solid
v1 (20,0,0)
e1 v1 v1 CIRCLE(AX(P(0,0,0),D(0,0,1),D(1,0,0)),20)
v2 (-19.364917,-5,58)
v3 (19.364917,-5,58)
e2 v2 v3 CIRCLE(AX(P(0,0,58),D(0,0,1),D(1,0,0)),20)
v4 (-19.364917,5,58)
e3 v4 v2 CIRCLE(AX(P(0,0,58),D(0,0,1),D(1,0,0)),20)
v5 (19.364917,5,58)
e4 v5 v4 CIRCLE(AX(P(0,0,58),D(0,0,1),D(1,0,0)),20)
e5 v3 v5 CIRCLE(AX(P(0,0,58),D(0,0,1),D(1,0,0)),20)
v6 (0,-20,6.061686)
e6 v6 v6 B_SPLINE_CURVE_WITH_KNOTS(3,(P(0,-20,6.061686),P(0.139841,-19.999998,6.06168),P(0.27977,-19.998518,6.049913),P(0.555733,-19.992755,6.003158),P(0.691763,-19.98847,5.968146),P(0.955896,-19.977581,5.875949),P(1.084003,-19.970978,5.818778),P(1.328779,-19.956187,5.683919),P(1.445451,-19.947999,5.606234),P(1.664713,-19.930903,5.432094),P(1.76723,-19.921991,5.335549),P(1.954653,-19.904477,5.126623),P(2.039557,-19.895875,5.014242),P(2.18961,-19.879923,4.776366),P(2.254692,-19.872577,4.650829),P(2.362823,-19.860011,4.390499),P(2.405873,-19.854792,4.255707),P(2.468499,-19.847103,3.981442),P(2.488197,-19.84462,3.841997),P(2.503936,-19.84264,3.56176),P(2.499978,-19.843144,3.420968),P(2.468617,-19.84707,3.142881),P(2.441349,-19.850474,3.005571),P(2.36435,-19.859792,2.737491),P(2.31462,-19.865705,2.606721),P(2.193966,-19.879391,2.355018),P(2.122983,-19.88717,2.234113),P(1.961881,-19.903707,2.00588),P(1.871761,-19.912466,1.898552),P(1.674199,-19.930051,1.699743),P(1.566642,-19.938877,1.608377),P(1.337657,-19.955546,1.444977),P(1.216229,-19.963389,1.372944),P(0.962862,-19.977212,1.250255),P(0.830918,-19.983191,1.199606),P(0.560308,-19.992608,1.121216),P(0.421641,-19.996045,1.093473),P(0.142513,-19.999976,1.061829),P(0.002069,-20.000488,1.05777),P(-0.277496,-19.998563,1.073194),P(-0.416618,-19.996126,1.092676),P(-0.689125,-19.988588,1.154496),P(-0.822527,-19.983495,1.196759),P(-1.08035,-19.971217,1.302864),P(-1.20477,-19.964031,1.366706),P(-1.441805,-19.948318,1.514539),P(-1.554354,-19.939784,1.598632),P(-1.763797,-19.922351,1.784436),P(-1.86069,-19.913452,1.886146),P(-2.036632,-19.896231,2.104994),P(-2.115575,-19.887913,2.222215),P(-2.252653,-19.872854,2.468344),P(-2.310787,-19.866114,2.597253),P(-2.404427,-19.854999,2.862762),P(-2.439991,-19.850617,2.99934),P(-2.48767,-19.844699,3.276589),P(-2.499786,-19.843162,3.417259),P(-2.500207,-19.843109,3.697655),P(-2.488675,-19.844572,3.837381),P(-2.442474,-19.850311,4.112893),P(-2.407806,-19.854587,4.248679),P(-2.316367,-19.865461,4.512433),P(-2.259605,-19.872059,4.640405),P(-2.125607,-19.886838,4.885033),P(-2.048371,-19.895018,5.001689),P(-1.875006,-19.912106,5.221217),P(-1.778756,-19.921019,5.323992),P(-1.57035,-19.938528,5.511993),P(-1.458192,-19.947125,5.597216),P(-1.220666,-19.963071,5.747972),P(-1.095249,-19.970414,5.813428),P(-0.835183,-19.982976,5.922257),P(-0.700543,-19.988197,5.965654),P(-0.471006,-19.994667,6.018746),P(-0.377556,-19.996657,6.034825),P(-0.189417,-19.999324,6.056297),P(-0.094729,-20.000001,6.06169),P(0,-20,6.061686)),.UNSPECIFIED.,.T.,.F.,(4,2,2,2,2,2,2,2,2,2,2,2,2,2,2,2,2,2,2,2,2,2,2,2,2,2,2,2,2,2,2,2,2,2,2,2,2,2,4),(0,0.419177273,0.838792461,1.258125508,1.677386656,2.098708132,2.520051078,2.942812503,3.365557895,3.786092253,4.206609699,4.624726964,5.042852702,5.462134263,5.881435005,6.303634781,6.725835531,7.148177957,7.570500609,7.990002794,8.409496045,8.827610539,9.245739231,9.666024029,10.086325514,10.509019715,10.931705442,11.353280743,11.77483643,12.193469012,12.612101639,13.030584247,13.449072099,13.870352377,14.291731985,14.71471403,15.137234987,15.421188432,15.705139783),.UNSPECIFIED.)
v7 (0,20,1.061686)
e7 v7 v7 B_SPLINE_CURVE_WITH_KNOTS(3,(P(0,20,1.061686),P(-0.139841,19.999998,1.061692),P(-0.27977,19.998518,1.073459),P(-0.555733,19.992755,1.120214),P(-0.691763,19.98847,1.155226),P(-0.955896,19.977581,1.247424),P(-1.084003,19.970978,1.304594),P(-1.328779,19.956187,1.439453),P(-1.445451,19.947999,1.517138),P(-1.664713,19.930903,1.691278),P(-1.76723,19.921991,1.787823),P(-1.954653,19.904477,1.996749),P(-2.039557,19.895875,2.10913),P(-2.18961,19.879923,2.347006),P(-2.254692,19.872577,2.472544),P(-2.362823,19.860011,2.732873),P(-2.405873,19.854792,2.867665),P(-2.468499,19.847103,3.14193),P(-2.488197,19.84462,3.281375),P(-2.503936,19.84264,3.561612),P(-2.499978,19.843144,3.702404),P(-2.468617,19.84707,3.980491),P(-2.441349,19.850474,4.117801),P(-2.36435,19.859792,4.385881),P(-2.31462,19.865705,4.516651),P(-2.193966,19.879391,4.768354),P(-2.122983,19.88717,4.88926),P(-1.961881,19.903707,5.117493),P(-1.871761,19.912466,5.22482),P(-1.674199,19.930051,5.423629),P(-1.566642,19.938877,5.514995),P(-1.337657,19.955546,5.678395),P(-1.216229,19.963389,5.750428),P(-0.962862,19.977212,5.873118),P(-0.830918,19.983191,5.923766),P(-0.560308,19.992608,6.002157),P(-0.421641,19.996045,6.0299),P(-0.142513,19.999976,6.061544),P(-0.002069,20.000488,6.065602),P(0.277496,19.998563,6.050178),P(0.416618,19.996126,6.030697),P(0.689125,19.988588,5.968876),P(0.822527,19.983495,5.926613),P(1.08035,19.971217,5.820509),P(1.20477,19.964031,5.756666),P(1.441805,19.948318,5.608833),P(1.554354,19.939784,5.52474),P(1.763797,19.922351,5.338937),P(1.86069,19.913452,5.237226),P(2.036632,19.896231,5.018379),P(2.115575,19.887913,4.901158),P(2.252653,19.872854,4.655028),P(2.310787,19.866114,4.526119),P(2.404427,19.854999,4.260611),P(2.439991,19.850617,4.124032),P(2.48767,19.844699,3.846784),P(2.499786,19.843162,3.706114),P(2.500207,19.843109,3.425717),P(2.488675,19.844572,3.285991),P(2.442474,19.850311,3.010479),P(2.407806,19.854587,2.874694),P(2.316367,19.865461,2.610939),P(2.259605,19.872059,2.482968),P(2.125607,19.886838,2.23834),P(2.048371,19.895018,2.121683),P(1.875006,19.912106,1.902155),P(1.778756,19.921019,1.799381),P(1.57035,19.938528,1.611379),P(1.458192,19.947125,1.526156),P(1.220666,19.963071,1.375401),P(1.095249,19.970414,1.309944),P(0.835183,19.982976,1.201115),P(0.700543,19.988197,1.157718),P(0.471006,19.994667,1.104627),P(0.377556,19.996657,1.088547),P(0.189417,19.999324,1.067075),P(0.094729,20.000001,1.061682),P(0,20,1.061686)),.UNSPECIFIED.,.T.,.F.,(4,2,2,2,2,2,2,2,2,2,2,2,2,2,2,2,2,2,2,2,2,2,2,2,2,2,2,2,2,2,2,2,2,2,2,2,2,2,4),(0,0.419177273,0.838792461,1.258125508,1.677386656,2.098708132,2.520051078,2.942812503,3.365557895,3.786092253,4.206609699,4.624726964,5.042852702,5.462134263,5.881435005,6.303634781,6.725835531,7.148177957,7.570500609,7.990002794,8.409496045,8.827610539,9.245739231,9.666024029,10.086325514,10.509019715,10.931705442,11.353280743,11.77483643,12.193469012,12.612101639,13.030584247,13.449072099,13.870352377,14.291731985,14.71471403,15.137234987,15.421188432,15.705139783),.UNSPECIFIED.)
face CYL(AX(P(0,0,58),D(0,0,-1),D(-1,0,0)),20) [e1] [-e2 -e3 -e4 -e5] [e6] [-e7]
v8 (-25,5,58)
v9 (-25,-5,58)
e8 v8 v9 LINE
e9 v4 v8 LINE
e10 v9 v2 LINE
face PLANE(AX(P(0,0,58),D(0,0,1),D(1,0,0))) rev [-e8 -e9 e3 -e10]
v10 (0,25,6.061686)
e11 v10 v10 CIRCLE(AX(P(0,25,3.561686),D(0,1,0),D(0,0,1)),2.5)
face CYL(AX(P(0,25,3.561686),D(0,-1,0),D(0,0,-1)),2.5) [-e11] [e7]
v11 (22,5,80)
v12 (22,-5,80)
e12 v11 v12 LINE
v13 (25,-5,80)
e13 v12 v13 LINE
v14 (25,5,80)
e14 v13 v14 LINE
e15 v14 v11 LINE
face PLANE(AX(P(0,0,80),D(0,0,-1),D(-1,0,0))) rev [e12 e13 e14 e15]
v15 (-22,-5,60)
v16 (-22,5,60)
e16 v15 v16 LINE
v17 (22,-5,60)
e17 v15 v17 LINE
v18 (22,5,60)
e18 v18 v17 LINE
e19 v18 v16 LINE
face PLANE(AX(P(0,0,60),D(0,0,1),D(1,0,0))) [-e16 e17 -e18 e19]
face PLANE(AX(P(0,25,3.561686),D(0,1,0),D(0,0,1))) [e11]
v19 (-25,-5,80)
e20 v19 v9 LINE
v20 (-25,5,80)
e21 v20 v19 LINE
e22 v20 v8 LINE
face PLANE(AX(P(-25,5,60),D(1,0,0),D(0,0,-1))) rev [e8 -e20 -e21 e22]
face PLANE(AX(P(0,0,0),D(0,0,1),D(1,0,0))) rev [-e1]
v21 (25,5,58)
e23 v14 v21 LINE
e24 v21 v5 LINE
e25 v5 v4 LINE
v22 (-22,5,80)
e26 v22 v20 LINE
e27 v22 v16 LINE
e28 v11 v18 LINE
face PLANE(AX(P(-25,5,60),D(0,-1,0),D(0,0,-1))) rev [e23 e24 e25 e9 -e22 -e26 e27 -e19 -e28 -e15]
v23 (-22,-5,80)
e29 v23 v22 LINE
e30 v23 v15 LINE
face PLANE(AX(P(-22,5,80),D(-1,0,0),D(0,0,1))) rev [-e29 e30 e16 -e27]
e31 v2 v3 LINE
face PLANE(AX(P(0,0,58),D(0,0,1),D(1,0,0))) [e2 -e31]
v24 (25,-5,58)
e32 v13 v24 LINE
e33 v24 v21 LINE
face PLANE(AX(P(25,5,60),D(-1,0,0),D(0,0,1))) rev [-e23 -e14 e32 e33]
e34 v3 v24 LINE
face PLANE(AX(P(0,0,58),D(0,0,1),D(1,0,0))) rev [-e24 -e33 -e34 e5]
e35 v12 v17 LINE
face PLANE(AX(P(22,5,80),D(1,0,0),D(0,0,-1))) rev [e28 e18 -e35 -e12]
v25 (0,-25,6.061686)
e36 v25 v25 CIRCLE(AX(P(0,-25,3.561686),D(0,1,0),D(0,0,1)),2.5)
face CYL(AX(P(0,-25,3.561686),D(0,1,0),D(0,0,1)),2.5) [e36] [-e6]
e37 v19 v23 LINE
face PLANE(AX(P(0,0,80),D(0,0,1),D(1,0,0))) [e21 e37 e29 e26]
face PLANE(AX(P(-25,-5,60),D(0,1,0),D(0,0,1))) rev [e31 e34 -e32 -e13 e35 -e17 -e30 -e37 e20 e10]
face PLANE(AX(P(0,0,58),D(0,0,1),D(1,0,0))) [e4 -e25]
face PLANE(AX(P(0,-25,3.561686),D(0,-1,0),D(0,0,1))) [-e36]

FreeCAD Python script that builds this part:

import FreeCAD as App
import Part
import Sketcher

V = App.Vector
Q = App.Units.Quantity

doc = App.newDocument("Part")
body = doc.addObject("PartDesign::Body", "Body")

# Sketch on XY plane
sketch1 = body.newObject("Sketcher::SketchObject", "Sketch")
sketch1.AttachmentSupport = (doc.getObject("XY_Plane"), [""])
sketch1.MapMode = "FlatFace"
sketch1.addGeometry(Part.Circle(V(0, 0, 0), V(0, 0, 1), 20), False)
sketch1.addConstraint(Sketcher.Constraint("Coincident", 0, 3, -1, 1))
sketch1.addConstraint(Sketcher.Constraint("Diameter", 0, Q("40 mm")))
pad1 = body.newObject("PartDesign::Pad", "Pad")
pad1.Profile = sketch1
pad1.Length = 58

# Sketch on XZ plane
sketch2 = body.newObject("Sketcher::SketchObject", "Sketch001")
sketch2.AttachmentSupport = (doc.getObject("XZ_Plane"), [""])
sketch2.MapMode = "FlatFace"
sketch2.addGeometry(Part.Circle(V(0, 3.561686, 0), V(0, 0, 1), 2.5), False)
sketch2.addConstraint(Sketcher.Constraint("PointOnObject", 0, 3, -2))
sketch2.addConstraint(Sketcher.Constraint("Diameter", 0, Q("5 mm")))
sketch2.addConstraint(Sketcher.Constraint("DistanceY", -1, 1, 0, 3, Q("3.561686 mm")))
pad2 = body.newObject("PartDesign::Pad", "Pad001")
pad2.Profile = sketch2
pad2.Length = 25
pad2.Reversed = True

# Sketch on XY plane
sketch3 = body.newObject("Sketcher::SketchObject", "Sketch002")
sketch3.AttachmentSupport = (doc.getObject("XY_Plane"), [""])
sketch3.MapMode = "FlatFace"
sketch3.AttachmentOffset = App.Placement(V(0, 0, 58), App.Rotation())
sketch3.addGeometry(Part.LineSegment(V(-25, 5, 0), V(-25, -5, 0)), False)
sketch3.addGeometry(Part.LineSegment(V(-25, -5, 0), V(25, -5, 0)), False)
sketch3.addGeometry(Part.LineSegment(V(25, -5, 0), V(25, 5, 0)), False)
sketch3.addGeometry(Part.LineSegment(V(25, 5, 0), V(-25, 5, 0)), False)
sketch3.addConstraint(Sketcher.Constraint("Coincident", 0, 2, 1, 1))
sketch3.addConstraint(Sketcher.Constraint("Coincident", 1, 2, 2, 1))
sketch3.addConstraint(Sketcher.Constraint("Coincident", 2, 2, 3, 1))
sketch3.addConstraint(Sketcher.Constraint("Coincident", 3, 2, 0, 1))
sketch3.addConstraint(Sketcher.Constraint("Vertical", 0))
sketch3.addConstraint(Sketcher.Constraint("Horizontal", 1))
sketch3.addConstraint(Sketcher.Constraint("Vertical", 2))
sketch3.addConstraint(Sketcher.Constraint("Horizontal", 3))
sketch3.addConstraint(Sketcher.Constraint("Symmetric", 0, 2, 2, 2, -1, 1))
sketch3.addConstraint(Sketcher.Constraint("DistanceX", 1, 1, 1, 2, Q("50 mm")))
sketch3.addConstraint(Sketcher.Constraint("DistanceY", 0, 2, 0, 1, Q("10 mm")))
pad3 = body.newObject("PartDesign::Pad", "Pad002")
pad3.Profile = sketch3
pad3.Length = 2

# Sketch on XY plane
sketch4 = body.newObject("Sketcher::SketchObject", "Sketch003")
sketch4.AttachmentSupport = (doc.getObject("XY_Plane"), [""])
sketch4.MapMode = "FlatFace"
sketch4.AttachmentOffset = App.Placement(V(0, 0, 60), App.Rotation())
sketch4.addGeometry(Part.LineSegment(V(-25, 5, 0), V(-25, -5, 0)), False)
sketch4.addGeometry(Part.LineSegment(V(-25, -5, 0), V(-22, -5, 0)), False)
sketch4.addGeometry(Part.LineSegment(V(-22, -5, 0), V(-22, 5, 0)), False)
sketch4.addGeometry(Part.LineSegment(V(-22, 5, 0), V(-25, 5, 0)), False)
sketch4.addConstraint(Sketcher.Constraint("Coincident", 0, 2, 1, 1))
sketch4.addConstraint(Sketcher.Constraint("Coincident", 1, 2, 2, 1))
sketch4.addConstraint(Sketcher.Constraint("Coincident", 2, 2, 3, 1))
sketch4.addConstraint(Sketcher.Constraint("Coincident", 3, 2, 0, 1))
sketch4.addConstraint(Sketcher.Constraint("Vertical", 0))
sketch4.addConstraint(Sketcher.Constraint("Horizontal", 1))
sketch4.addConstraint(Sketcher.Constraint("Vertical", 2))
sketch4.addConstraint(Sketcher.Constraint("Horizontal", 3))
sketch4.addConstraint(Sketcher.Constraint("DistanceX", 1, 1, 1, 2, Q("3 mm")))
sketch4.addConstraint(Sketcher.Constraint("DistanceY", 0, 2, 0, 1, Q("10 mm")))
sketch4.addConstraint(Sketcher.Constraint("DistanceX", 0, 2, -1, 1, Q("25 mm")))
sketch4.addConstraint(Sketcher.Constraint("DistanceY", 0, 2, -1, 1, Q("5 mm")))
pad4 = body.newObject("PartDesign::Pad", "Pad003")
pad4.Profile = sketch4
pad4.Length = 20

# Sketch on XY plane
sketch5 = body.newObject("Sketcher::SketchObject", "Sketch004")
sketch5.AttachmentSupport = (doc.getObject("XY_Plane"), [""])
sketch5.MapMode = "FlatFace"
sketch5.AttachmentOffset = App.Placement(V(0, 0, 60), App.Rotation())
sketch5.addGeometry(Part.LineSegment(V(22, 5, 0), V(22, -5, 0)), False)
sketch5.addGeometry(Part.LineSegment(V(22, -5, 0), V(25, -5, 0)), False)
sketch5.addGeometry(Part.LineSegment(V(25, -5, 0), V(25, 5, 0)), False)
sketch5.addGeometry(Part.LineSegment(V(25, 5, 0), V(22, 5, 0)), False)
sketch5.addConstraint(Sketcher.Constraint("Coincident", 0, 2, 1, 1))
sketch5.addConstraint(Sketcher.Constraint("Coincident", 1, 2, 2, 1))
sketch5.addConstraint(Sketcher.Constraint("Coincident", 2, 2, 3, 1))
sketch5.addConstraint(Sketcher.Constraint("Coincident", 3, 2, 0, 1))
sketch5.addConstraint(Sketcher.Constraint("Vertical", 0))
sketch5.addConstraint(Sketcher.Constraint("Horizontal", 1))
sketch5.addConstraint(Sketcher.Constraint("Vertical", 2))
sketch5.addConstraint(Sketcher.Constraint("Horizontal", 3))
sketch5.addConstraint(Sketcher.Constraint("DistanceX", 1, 1, 1, 2, Q("3 mm")))
sketch5.addConstraint(Sketcher.Constraint("DistanceY", 0, 2, 0, 1, Q("10 mm")))
sketch5.addConstraint(Sketcher.Constraint("DistanceX", -1, 1, 0, 2, Q("22 mm")))
sketch5.addConstraint(Sketcher.Constraint("DistanceY", 0, 2, -1, 1, Q("5 mm")))
pad5 = body.newObject("PartDesign::Pad", "Pad004")
pad5.Profile = sketch5
pad5.Length = 20
doc.recompute()

mirrored = body.newObject("PartDesign::Mirrored", "Mirrored")
mirrored.Originals = [pad2]
mirrored.MirrorPlane = (doc.getObject("XZ_Plane"), [""])
body.Tip = mirrored

doc.recompute()
